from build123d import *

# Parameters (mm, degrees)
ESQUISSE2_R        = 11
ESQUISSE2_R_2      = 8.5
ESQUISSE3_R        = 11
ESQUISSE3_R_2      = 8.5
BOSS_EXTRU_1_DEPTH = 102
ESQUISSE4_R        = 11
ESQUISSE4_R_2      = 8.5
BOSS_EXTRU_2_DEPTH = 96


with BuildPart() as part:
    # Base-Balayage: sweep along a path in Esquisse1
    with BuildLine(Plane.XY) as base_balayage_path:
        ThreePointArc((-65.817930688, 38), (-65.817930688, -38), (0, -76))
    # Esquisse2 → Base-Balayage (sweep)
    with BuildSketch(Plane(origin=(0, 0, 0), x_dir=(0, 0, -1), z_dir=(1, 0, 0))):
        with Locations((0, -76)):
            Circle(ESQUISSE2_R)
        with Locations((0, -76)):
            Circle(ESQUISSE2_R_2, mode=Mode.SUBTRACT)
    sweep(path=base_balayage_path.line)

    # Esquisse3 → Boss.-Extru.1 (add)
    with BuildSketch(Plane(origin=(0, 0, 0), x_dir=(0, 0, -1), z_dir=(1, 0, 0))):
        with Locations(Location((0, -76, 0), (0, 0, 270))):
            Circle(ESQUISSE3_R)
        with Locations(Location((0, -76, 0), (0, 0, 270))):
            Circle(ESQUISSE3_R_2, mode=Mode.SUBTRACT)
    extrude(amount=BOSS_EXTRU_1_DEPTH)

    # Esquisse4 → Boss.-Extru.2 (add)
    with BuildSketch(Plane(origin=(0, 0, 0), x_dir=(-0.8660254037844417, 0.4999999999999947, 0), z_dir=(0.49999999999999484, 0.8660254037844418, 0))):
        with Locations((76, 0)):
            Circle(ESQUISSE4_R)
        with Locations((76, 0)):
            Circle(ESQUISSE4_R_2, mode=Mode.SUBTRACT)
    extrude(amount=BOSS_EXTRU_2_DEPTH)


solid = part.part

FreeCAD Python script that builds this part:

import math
import FreeCAD as App
import Part
import Sketcher

doc = App.newDocument("Part")
body = doc.addObject("PartDesign::Body", "Body")

# Sketch on YZ plane
sketch1 = doc.addObject("Sketcher::SketchObject", "Sketch")
body.addObject(sketch1)
sketch1.AttachmentSupport = (doc.YZ_Plane, [""])
sketch1.MapMode = "FlatFace"
sketch1.addGeometry([
    Part.Circle(App.Vector(-76, 0, 0), App.Vector(0, 0, 1), 11),
    Part.Circle(App.Vector(-76, 0, 0), App.Vector(0, 0, 1), 8),
], False)
sketch1.addConstraint([
    Sketcher.Constraint("Coincident", 1, 3, 0, 3),
    Sketcher.Constraint("PointOnObject", 0, 3, -1),
    Sketcher.Constraint("Diameter", 0, 22.0),
    Sketcher.Constraint("Diameter", 1, 17.0),
    Sketcher.Constraint("DistanceX", 0, 3, -1, 1, 76.0),
])

# Sketch on XY plane
sketch2 = doc.addObject("Sketcher::SketchObject", "Sketch001")
body.addObject(sketch2)
sketch2.AttachmentSupport = (doc.XY_Plane, [""])
sketch2.MapMode = "FlatFace"
sketch2.addGeometry(Part.ArcOfCircle(Part.Circle(App.Vector(0, 0, 0), App.Vector(0, 0, 1), 76), math.radians(150), math.radians(270)), False)
sketch2.addConstraint([
    Sketcher.Constraint("Coincident", 0, 3, -1, 1),
    Sketcher.Constraint("PointOnObject", 0, 2, -2),
    Sketcher.Constraint("Radius", 0, 76.0),
    Sketcher.Constraint("DistanceY", -1, 1, 0, 1, 38.0),
])
doc.recompute()

additivepipe = doc.addObject("PartDesign::AdditivePipe", "AdditivePipe")
body.addObject(additivepipe)
additivepipe.Profile = sketch1
additivepipe.Spine = (sketch2, ["Edge1"])

# Sketch on YZ plane
sketch3 = doc.addObject("Sketcher::SketchObject", "Sketch002")
body.addObject(sketch3)
sketch3.AttachmentSupport = (doc.YZ_Plane, [""])
sketch3.MapMode = "FlatFace"
sketch3.addGeometry([
    Part.Circle(App.Vector(-76, 0, 0), App.Vector(0, 0, 1), 11),
    Part.Circle(App.Vector(-76, 0, 0), App.Vector(0, 0, 1), 8),
], False)
sketch3.addConstraint([
    Sketcher.Constraint("Coincident", 1, 3, 0, 3),
    Sketcher.Constraint("PointOnObject", 0, 3, -1),
    Sketcher.Constraint("Diameter", 0, 22.0),
    Sketcher.Constraint("Diameter", 1, 17.0),
    Sketcher.Constraint("DistanceX", 0, 3, -1, 1, 76.0),
])
pad1 = doc.addObject("PartDesign::Pad", "Pad")
body.addObject(pad1)
pad1.Profile = sketch3
pad1.Length = 102

# Sketch on an angled plane
sketch4 = doc.addObject("Sketcher::SketchObject", "Sketch003")
body.addObject(sketch4)
sketch4.Placement = App.Placement(App.Vector(0, 0, 0), App.Rotation(App.Vector(-0.866025404, 0.5, 0), App.Vector(0, 0, 1), App.Vector(0.5, 0.866025404, 0), "ZXY"))
sketch4.addGeometry([
    Part.Circle(App.Vector(76, 0, 0), App.Vector(0, 0, 1), 11),
    Part.Circle(App.Vector(76, 0, 0), App.Vector(0, 0, 1), 8),
], False)
sketch4.addConstraint([
    Sketcher.Constraint("Coincident", 1, 3, 0, 3),
    Sketcher.Constraint("PointOnObject", 0, 3, -1),
    Sketcher.Constraint("Diameter", 0, 22.0),
    Sketcher.Constraint("Diameter", 1, 17.0),
    Sketcher.Constraint("DistanceX", -1, 1, 0, 3, 76.0),
])
pad2 = doc.addObject("PartDesign::Pad", "Pad001")
body.addObject(pad2)
pad2.Profile = sketch4
pad2.Length = 96

doc.recompute()
